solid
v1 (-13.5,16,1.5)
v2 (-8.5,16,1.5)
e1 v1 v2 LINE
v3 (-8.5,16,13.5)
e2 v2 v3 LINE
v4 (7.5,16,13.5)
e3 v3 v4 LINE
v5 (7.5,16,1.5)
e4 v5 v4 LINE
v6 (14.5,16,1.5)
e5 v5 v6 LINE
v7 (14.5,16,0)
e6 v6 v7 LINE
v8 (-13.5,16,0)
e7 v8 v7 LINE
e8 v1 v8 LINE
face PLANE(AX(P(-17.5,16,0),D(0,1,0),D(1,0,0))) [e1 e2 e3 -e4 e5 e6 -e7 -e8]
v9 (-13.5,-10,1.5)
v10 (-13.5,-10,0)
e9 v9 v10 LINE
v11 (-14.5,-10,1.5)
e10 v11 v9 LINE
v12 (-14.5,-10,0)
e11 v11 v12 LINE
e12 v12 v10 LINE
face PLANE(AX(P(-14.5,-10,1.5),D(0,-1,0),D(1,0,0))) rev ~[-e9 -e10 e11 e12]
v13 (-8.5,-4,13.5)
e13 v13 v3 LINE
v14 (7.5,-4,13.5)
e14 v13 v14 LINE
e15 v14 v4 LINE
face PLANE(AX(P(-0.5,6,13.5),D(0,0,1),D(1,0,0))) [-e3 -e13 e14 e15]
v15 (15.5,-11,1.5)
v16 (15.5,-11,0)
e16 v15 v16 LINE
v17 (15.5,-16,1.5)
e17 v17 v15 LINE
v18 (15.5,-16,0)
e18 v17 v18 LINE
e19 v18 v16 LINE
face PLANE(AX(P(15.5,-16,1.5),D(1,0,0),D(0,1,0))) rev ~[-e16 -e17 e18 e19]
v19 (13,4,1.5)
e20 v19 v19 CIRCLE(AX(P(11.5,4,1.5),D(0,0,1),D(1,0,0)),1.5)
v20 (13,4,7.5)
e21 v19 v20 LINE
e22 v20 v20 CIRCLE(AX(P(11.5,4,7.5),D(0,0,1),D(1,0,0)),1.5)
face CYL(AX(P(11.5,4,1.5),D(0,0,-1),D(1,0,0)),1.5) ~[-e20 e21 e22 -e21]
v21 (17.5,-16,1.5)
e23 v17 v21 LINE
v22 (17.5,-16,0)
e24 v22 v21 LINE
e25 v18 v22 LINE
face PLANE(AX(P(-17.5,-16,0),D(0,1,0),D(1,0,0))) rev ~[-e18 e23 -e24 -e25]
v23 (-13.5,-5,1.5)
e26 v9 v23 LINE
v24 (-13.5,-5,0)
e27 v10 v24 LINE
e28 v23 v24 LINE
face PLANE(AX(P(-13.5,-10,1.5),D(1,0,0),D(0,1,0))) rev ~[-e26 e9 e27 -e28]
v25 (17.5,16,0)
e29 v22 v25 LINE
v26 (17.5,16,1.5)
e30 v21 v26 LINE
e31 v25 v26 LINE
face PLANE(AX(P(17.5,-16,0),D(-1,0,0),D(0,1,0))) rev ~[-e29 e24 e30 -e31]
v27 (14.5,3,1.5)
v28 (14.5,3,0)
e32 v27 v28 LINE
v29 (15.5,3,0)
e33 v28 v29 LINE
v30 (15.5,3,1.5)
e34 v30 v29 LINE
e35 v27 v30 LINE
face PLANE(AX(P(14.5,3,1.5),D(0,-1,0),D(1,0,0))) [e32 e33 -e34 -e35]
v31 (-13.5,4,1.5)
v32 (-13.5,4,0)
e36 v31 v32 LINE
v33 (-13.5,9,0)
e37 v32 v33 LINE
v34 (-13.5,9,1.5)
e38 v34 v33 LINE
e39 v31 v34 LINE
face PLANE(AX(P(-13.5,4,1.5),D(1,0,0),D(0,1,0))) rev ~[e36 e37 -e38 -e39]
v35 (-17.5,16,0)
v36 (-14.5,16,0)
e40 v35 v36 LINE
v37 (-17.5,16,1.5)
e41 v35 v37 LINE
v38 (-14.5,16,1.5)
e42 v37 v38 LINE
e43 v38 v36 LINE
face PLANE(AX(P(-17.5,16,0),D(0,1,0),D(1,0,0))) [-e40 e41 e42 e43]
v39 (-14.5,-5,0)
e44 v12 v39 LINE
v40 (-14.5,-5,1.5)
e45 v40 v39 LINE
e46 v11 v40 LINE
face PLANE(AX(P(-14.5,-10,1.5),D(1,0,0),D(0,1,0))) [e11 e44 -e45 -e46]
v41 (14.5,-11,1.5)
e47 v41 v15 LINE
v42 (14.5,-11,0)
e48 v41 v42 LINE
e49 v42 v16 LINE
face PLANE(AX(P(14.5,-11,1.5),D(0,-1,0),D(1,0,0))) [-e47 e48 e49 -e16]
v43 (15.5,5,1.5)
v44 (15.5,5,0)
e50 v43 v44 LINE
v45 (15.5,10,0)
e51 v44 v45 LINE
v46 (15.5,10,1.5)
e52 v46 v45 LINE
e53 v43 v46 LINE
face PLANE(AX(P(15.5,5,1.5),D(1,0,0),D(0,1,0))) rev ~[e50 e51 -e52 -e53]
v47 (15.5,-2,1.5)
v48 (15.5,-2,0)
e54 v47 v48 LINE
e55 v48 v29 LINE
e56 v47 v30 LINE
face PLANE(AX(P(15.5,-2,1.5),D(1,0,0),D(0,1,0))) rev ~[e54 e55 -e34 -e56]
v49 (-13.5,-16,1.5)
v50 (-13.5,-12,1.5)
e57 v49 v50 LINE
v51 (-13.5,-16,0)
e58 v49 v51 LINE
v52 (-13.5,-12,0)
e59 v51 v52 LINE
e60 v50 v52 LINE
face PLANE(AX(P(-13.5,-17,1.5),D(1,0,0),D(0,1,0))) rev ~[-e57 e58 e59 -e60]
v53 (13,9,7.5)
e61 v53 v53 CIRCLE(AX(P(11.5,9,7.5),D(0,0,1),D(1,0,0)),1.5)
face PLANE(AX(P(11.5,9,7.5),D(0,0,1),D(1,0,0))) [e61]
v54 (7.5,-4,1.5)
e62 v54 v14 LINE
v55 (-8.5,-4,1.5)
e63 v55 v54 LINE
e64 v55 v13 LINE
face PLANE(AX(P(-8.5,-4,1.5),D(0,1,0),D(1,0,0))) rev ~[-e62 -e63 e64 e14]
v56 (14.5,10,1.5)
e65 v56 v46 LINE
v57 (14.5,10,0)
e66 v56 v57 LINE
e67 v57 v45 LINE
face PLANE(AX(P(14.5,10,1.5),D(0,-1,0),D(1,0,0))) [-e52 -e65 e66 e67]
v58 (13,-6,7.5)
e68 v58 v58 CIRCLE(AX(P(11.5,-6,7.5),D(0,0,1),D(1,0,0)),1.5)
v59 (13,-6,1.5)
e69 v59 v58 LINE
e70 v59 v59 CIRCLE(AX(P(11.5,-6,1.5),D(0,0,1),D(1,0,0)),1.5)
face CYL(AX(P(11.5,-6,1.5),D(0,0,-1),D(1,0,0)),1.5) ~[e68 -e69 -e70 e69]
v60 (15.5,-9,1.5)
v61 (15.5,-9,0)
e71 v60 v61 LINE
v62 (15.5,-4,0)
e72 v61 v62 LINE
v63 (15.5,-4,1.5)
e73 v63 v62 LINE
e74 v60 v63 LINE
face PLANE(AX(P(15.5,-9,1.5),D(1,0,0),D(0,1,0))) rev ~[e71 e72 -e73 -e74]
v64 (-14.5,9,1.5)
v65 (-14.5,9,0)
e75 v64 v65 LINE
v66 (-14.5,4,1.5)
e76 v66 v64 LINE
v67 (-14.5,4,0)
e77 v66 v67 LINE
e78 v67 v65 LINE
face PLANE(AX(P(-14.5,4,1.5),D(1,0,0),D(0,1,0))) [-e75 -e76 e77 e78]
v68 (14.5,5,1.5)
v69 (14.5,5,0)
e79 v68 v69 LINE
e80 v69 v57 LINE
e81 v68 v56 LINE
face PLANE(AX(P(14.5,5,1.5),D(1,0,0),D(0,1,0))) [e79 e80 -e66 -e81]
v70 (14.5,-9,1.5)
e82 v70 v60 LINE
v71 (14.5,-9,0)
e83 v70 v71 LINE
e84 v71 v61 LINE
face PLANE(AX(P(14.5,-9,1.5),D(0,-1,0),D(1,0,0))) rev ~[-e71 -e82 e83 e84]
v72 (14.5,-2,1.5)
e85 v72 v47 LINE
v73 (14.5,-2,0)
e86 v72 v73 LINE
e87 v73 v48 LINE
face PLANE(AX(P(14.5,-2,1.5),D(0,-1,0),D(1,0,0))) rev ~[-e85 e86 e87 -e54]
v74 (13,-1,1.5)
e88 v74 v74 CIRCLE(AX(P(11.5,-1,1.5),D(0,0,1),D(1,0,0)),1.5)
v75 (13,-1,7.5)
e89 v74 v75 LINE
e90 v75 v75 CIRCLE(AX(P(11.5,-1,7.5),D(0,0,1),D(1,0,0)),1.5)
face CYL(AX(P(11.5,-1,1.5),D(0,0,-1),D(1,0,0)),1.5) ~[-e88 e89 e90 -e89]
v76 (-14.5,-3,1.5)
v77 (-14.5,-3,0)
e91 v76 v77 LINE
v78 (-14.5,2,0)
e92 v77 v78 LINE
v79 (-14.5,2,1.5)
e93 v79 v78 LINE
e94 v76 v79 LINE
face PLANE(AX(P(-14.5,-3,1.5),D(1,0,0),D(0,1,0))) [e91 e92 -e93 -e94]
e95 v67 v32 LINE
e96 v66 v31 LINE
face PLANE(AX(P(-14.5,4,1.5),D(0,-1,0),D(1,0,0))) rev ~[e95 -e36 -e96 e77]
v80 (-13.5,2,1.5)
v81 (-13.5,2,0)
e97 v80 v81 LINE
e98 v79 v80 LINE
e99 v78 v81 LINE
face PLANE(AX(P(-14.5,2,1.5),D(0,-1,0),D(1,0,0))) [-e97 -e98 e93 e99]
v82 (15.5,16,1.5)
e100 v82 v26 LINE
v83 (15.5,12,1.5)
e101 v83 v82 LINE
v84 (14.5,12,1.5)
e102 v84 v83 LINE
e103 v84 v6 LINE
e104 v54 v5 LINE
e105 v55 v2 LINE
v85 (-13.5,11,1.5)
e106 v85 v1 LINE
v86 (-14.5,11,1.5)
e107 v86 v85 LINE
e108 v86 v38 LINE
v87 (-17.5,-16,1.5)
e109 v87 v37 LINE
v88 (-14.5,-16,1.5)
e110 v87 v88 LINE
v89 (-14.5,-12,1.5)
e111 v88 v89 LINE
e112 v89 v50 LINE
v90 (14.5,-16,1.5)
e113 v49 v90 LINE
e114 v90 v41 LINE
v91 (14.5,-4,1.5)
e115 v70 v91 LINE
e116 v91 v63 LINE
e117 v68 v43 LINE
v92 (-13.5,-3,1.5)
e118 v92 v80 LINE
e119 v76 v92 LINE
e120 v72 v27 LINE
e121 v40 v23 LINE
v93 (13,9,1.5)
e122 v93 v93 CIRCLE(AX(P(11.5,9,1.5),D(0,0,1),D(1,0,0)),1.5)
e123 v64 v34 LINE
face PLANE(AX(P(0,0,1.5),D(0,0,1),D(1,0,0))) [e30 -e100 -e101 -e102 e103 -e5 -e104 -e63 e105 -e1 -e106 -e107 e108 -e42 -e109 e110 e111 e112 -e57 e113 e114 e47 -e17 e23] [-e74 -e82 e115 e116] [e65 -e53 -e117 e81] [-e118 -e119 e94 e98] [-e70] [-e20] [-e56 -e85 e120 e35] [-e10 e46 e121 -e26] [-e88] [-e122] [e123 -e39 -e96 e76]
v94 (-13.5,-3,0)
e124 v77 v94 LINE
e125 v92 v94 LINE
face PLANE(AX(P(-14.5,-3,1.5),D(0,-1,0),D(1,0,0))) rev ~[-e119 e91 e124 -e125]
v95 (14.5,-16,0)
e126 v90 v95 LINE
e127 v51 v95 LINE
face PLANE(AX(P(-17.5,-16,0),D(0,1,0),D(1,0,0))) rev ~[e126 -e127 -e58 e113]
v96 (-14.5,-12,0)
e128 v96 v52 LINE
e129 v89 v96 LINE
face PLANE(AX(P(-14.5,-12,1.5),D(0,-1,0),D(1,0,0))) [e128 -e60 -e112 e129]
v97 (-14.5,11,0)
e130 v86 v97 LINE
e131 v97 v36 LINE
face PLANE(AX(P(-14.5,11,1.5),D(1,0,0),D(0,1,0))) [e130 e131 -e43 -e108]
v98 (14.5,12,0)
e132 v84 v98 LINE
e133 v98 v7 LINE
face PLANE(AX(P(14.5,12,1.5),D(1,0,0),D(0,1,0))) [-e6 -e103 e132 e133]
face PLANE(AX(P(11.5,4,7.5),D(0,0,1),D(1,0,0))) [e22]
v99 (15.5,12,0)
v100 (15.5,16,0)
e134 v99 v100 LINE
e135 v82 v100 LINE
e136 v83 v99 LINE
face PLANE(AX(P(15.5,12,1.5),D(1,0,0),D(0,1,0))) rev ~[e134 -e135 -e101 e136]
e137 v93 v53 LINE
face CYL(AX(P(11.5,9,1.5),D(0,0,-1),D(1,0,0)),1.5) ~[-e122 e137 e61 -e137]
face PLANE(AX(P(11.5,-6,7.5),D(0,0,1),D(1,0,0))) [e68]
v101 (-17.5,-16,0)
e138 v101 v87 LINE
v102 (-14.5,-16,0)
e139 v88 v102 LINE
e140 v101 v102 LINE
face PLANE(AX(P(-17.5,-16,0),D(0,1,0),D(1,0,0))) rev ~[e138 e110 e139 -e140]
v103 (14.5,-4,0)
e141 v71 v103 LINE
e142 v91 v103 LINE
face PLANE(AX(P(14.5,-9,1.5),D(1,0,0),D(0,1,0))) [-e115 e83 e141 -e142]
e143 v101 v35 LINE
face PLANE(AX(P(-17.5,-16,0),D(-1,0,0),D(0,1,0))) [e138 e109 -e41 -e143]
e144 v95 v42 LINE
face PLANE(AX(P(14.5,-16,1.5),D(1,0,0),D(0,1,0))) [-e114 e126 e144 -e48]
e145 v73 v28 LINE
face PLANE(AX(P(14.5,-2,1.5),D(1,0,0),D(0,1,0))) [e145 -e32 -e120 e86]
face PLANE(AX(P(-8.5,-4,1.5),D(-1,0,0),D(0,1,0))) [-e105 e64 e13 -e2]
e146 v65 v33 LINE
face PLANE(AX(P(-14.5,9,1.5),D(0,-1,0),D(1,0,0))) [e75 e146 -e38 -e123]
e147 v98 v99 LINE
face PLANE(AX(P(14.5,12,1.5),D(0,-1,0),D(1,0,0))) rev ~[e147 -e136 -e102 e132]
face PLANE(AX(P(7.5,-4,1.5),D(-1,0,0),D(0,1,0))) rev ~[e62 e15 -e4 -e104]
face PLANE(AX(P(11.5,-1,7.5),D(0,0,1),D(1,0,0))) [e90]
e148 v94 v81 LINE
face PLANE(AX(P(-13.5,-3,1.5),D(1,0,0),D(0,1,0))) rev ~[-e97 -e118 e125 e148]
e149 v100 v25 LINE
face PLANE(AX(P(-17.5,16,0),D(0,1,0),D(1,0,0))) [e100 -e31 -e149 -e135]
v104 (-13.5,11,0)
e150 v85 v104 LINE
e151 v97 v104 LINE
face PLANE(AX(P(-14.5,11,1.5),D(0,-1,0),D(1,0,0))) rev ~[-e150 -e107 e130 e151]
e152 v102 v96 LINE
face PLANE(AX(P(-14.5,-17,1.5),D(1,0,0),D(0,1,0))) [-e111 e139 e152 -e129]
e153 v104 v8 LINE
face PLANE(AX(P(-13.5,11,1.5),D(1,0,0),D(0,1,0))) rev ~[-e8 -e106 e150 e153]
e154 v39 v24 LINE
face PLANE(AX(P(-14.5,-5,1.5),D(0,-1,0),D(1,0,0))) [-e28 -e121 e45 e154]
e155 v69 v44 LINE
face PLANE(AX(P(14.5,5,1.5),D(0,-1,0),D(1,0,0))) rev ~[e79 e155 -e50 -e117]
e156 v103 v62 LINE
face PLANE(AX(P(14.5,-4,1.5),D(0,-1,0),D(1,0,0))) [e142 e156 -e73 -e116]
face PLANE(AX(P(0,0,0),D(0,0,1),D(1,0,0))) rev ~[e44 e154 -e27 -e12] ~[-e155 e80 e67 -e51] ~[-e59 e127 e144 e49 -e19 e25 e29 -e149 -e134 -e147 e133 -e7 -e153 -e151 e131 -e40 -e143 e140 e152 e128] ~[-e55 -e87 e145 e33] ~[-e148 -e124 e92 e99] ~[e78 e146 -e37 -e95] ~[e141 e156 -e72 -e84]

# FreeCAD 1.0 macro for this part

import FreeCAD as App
import Part
import Sketcher


def add_polygon(sketch, points):
    """Adds a closed chain of lines whose ends are joined by coincident constraints."""
    first, n = sketch.GeometryCount, len(points)
    for a, b in zip(points, points[1:] + points[:1]):
        sketch.addGeometry(Part.LineSegment(App.Vector(*a, 0), App.Vector(*b, 0)), False)
    for i in range(n):
        sketch.addConstraint(Sketcher.Constraint("Coincident", first + i, 2, first + (i + 1) % n, 1))

doc = App.newDocument("Part")
params = doc.addObject("Spreadsheet::Sheet", "Params")
for row, (alias, value) in enumerate([
    ("sketch1_width", "35 mm"),
    ("sketch1_height", "32 mm"),
    ("pad1_length", "1.5 mm"),
    ("sketch2_width", "16 mm"),
    ("sketch2_height", "20 mm"),
    ("pad2_length", "12 mm"),
    ("sketch3_diameter", "3 mm"),
    ("pad3_length", "6 mm"),
    ("sketch4_width", "1 mm"),
    ("sketch4_height", "5 mm"),
], start=1):
    params.set(f"A{row}", alias)
    params.set(f"B{row}", "=" + value)
    params.setAlias(f"B{row}", alias)

body = doc.addObject("PartDesign::Body", "Body")

sketch1 = body.newObject("Sketcher::SketchObject", "Sketch")
sketch1.AttachmentSupport = (doc.getObject("XY_Plane"), [""])
sketch1.MapMode = "FlatFace"
add_polygon(sketch1, [(-18, 16), (-18, -16), (18, -16), (18, 16)])
sketch1.addConstraint(Sketcher.Constraint("Vertical", 0))
sketch1.addConstraint(Sketcher.Constraint("Horizontal", 1))
sketch1.addConstraint(Sketcher.Constraint("Vertical", 2))
sketch1.addConstraint(Sketcher.Constraint("Horizontal", 3))
sketch1.addConstraint(Sketcher.Constraint("Symmetric", 0, 2, 2, 2, -1, 1))
sketch1.addConstraint(Sketcher.Constraint("DistanceX", 1, 1, 1, 2, 35.0))
sketch1.addConstraint(Sketcher.Constraint("DistanceY", 0, 2, 0, 1, 32.0))
sketch1.setExpression("Constraints[9]", "Params.sketch1_width")
sketch1.setExpression("Constraints[10]", "Params.sketch1_height")
pad1 = body.newObject("PartDesign::Pad", "Pad")
pad1.Profile = sketch1
pad1.setExpression("Length", "Params.pad1_length")

sketch2 = body.newObject("Sketcher::SketchObject", "Sketch001")
sketch2.AttachmentSupport = (doc.getObject("XY_Plane"), [""])
sketch2.MapMode = "FlatFace"
sketch2.AttachmentOffset = App.Placement(App.Vector(0, 0, 1.5), App.Rotation())
add_polygon(sketch2, [(-8, 16), (-8, -4), (8, -4), (8, 16)])
sketch2.addConstraint(Sketcher.Constraint("Vertical", 0))
sketch2.addConstraint(Sketcher.Constraint("Horizontal", 1))
sketch2.addConstraint(Sketcher.Constraint("Vertical", 2))
sketch2.addConstraint(Sketcher.Constraint("Horizontal", 3))
sketch2.addConstraint(Sketcher.Constraint("DistanceX", 1, 1, 1, 2, 16.0))
sketch2.addConstraint(Sketcher.Constraint("DistanceY", 0, 2, 0, 1, 20.0))
sketch2.addConstraint(Sketcher.Constraint("DistanceY", 0, 2, -1, 1, 4.0))
sketch2.addConstraint(Sketcher.Constraint("DistanceX", 0, 2, -1, 1, 8.5))
sketch2.setExpression("Constraints[8]", "Params.sketch2_width")
sketch2.setExpression("Constraints[9]", "Params.sketch2_height")
pad2 = body.newObject("PartDesign::Pad", "Pad001")
pad2.Profile = sketch2
pad2.setExpression("Length", "Params.pad2_length")

sketch3 = body.newObject("Sketcher::SketchObject", "Sketch002")
sketch3.AttachmentSupport = (doc.getObject("XY_Plane"), [""])
sketch3.MapMode = "FlatFace"
sketch3.AttachmentOffset = App.Placement(App.Vector(0, 0, 1.5), App.Rotation())
sketch3.addGeometry(Part.Circle(App.Vector(11.5, 9, 0), App.Vector(0, 0, 1), 1.5), False)
sketch3.addGeometry(Part.Circle(App.Vector(11.5, 4, 0), App.Vector(0, 0, 1), 1.5), False)
sketch3.addGeometry(Part.Circle(App.Vector(11.5, -1, 0), App.Vector(0, 0, 1), 1.5), False)
sketch3.addGeometry(Part.Circle(App.Vector(11.5, -6, 0), App.Vector(0, 0, 1), 1.5), False)
sketch3.addConstraint(Sketcher.Constraint("Equal", 0, 1))
sketch3.addConstraint(Sketcher.Constraint("Equal", 1, 2))
sketch3.addConstraint(Sketcher.Constraint("Equal", 2, 3))
sketch3.addConstraint(Sketcher.Constraint("Vertical", 0, 3, 1, 3))
sketch3.addConstraint(Sketcher.Constraint("Vertical", 1, 3, 2, 3))
sketch3.addConstraint(Sketcher.Constraint("Vertical", 2, 3, 3, 3))
sketch3.addConstraint(Sketcher.Constraint("Diameter", 0, 3.0))
sketch3.addConstraint(Sketcher.Constraint("DistanceY", -1, 1, 0, 3, 9.0))
sketch3.addConstraint(Sketcher.Constraint("DistanceY", -1, 1, 1, 3, 4.0))
sketch3.addConstraint(Sketcher.Constraint("DistanceY", 2, 3, -1, 1, 1.0))
sketch3.addConstraint(Sketcher.Constraint("DistanceY", 3, 3, -1, 1, 6.0))
sketch3.addConstraint(Sketcher.Constraint("DistanceX", -1, 1, 0, 3, 11.5))
sketch3.setExpression("Constraints[6]", "Params.sketch3_diameter")
pad3 = body.newObject("PartDesign::Pad", "Pad002")
pad3.Profile = sketch3
pad3.setExpression("Length", "Params.pad3_length")

sketch4 = body.newObject("Sketcher::SketchObject", "Sketch003")
sketch4.AttachmentSupport = (doc.getObject("XY_Plane"), [""])
sketch4.MapMode = "FlatFace"
sketch4.AttachmentOffset = App.Placement(App.Vector(0, 0, 1.5), App.Rotation())
add_polygon(sketch4, [(-14.5, 16), (-14.5, 11), (-13.5, 11), (-13.5, 16)])
add_polygon(sketch4, [(-14.5, 9), (-14.5, 4), (-13.5, 4), (-13.5, 9)])
add_polygon(sketch4, [(-14.5, 2), (-14.5, -3), (-13.5, -3), (-13.5, 2)])
add_polygon(sketch4, [(-14.5, -5), (-14.5, -10), (-13.5, -10), (-13.5, -5)])
add_polygon(sketch4, [(-14.5, -12), (-14.5, -17), (-13.5, -17), (-13.5, -12)])
add_polygon(sketch4, [(14.5, -11), (14.5, -16), (15.5, -16), (15.5, -11)])
add_polygon(sketch4, [(14.5, -4), (14.5, -9), (15.5, -9), (15.5, -4)])
add_polygon(sketch4, [(14.5, 3), (14.5, -2), (15.5, -2), (15.5, 3)])
add_polygon(sketch4, [(14.5, 10), (14.5, 5), (15.5, 5), (15.5, 10)])
add_polygon(sketch4, [(14.5, 17), (14.5, 12), (15.5, 12), (15.5, 17)])
sketch4.addConstraint(Sketcher.Constraint("Vertical", 0))
sketch4.addConstraint(Sketcher.Constraint("Horizontal", 1))
sketch4.addConstraint(Sketcher.Constraint("Vertical", 2))
sketch4.addConstraint(Sketcher.Constraint("Horizontal", 3))
sketch4.addConstraint(Sketcher.Constraint("Vertical", 4))
sketch4.addConstraint(Sketcher.Constraint("Horizontal", 5))
sketch4.addConstraint(Sketcher.Constraint("Vertical", 6))
sketch4.addConstraint(Sketcher.Constraint("Horizontal", 7))
sketch4.addConstraint(Sketcher.Constraint("Vertical", 8))
sketch4.addConstraint(Sketcher.Constraint("Horizontal", 9))
sketch4.addConstraint(Sketcher.Constraint("Vertical", 10))
sketch4.addConstraint(Sketcher.Constraint("Horizontal", 11))
sketch4.addConstraint(Sketcher.Constraint("Vertical", 12))
sketch4.addConstraint(Sketcher.Constraint("Horizontal", 13))
sketch4.addConstraint(Sketcher.Constraint("Vertical", 14))
sketch4.addConstraint(Sketcher.Constraint("Horizontal", 15))
sketch4.addConstraint(Sketcher.Constraint("Vertical", 16))
sketch4.addConstraint(Sketcher.Constraint("Horizontal", 17))
sketch4.addConstraint(Sketcher.Constraint("Vertical", 18))
sketch4.addConstraint(Sketcher.Constraint("Horizontal", 19))
sketch4.addConstraint(Sketcher.Constraint("Vertical", 20))
sketch4.addConstraint(Sketcher.Constraint("Horizontal", 21))
sketch4.addConstraint(Sketcher.Constraint("Vertical", 22))
sketch4.addConstraint(Sketcher.Constraint("Horizontal", 23))
sketch4.addConstraint(Sketcher.Constraint("Vertical", 24))
sketch4.addConstraint(Sketcher.Constraint("Horizontal", 25))
sketch4.addConstraint(Sketcher.Constraint("Vertical", 26))
sketch4.addConstraint(Sketcher.Constraint("Horizontal", 27))
sketch4.addConstraint(Sketcher.Constraint("Vertical", 28))
sketch4.addConstraint(Sketcher.Constraint("Horizontal", 29))
sketch4.addConstraint(Sketcher.Constraint("Vertical", 30))
sketch4.addConstraint(Sketcher.Constraint("Horizontal", 31))
sketch4.addConstraint(Sketcher.Constraint("Vertical", 32))
sketch4.addConstraint(Sketcher.Constraint("Horizontal", 33))
sketch4.addConstraint(Sketcher.Constraint("Vertical", 34))
sketch4.addConstraint(Sketcher.Constraint("Horizontal", 35))
sketch4.addConstraint(Sketcher.Constraint("Vertical", 36))
sketch4.addConstraint(Sketcher.Constraint("Horizontal", 37))
sketch4.addConstraint(Sketcher.Constraint("Vertical", 38))
sketch4.addConstraint(Sketcher.Constraint("Horizontal", 39))
sketch4.addConstraint(Sketcher.Constraint("Symmetric", 3, 2, 20, 2, -1, 1))
sketch4.addConstraint(Sketcher.Constraint("Symmetric", 7, 2, 24, 2, -1, 1))
sketch4.addConstraint(Sketcher.Constraint("Symmetric", 11, 2, 28, 2, -1, 1))
sketch4.addConstraint(Sketcher.Constraint("Symmetric", 15, 2, 32, 2, -1, 1))
sketch4.addConstraint(Sketcher.Constraint("Symmetric", 19, 2, 36, 2, -1, 1))
sketch4.addConstraint(Sketcher.Constraint("Vertical", 3, 2, 4, 2))
sketch4.addConstraint(Sketcher.Constraint("Vertical", 2, 2, 5, 2))
sketch4.addConstraint(Sketcher.Constraint("Vertical", 7, 2, 8, 2))
sketch4.addConstraint(Sketcher.Constraint("Vertical", 6, 2, 9, 2))
sketch4.addConstraint(Sketcher.Constraint("Vertical", 11, 2, 12, 2))
sketch4.addConstraint(Sketcher.Constraint("Vertical", 10, 2, 13, 2))
sketch4.addConstraint(Sketcher.Constraint("Vertical", 15, 2, 16, 2))
sketch4.addConstraint(Sketcher.Constraint("Vertical", 14, 2, 17, 2))
sketch4.addConstraint(Sketcher.Constraint("Vertical", 22, 2, 25, 2))
sketch4.addConstraint(Sketcher.Constraint("Vertical", 26, 2, 29, 2))
sketch4.addConstraint(Sketcher.Constraint("Vertical", 30, 2, 33, 2))
sketch4.addConstraint(Sketcher.Constraint("Vertical", 34, 2, 37, 2))
sketch4.addConstraint(Sketcher.Constraint("Equal", 19, 21))
sketch4.addConstraint(Sketcher.Constraint("Equal", 2, 4))
sketch4.addConstraint(Sketcher.Constraint("Equal", 6, 8))
sketch4.addConstraint(Sketcher.Constraint("Equal", 10, 12))
sketch4.addConstraint(Sketcher.Constraint("Equal", 14, 16))
sketch4.addConstraint(Sketcher.Constraint("Equal", 18, 20))
sketch4.addConstraint(Sketcher.Constraint("Equal", 22, 24))
sketch4.addConstraint(Sketcher.Constraint("Equal", 26, 28))
sketch4.addConstraint(Sketcher.Constraint("Equal", 30, 32))
sketch4.addConstraint(Sketcher.Constraint("Equal", 34, 36))
sketch4.addConstraint(Sketcher.Constraint("DistanceX", 1, 1, 1, 2, 1.0))
sketch4.addConstraint(Sketcher.Constraint("DistanceY", 0, 2, 0, 1, 5.0))
sketch4.addConstraint(Sketcher.Constraint("DistanceY", -1, 1, 0, 2, 11.0))
sketch4.addConstraint(Sketcher.Constraint("DistanceY", -1, 1, 4, 2, 4.0))
sketch4.addConstraint(Sketcher.Constraint("DistanceY", 8, 2, -1, 1, 3.0))
sketch4.addConstraint(Sketcher.Constraint("DistanceY", 12, 2, -1, 1, 10.0))
sketch4.addConstraint(Sketcher.Constraint("DistanceY", 16, 2, -1, 1, 17.0))
sketch4.addConstraint(Sketcher.Constraint("DistanceX", 17, 2, 20, 2, 28.0))
sketch4.setExpression("Constraints[107]", "Params.sketch4_width")
sketch4.setExpression("Constraints[108]", "Params.sketch4_height")
pocket1 = body.newObject("PartDesign::Pocket", "Pocket")
pocket1.Profile = sketch4
pocket1.Type = "ThroughAll"

doc.recompute()
